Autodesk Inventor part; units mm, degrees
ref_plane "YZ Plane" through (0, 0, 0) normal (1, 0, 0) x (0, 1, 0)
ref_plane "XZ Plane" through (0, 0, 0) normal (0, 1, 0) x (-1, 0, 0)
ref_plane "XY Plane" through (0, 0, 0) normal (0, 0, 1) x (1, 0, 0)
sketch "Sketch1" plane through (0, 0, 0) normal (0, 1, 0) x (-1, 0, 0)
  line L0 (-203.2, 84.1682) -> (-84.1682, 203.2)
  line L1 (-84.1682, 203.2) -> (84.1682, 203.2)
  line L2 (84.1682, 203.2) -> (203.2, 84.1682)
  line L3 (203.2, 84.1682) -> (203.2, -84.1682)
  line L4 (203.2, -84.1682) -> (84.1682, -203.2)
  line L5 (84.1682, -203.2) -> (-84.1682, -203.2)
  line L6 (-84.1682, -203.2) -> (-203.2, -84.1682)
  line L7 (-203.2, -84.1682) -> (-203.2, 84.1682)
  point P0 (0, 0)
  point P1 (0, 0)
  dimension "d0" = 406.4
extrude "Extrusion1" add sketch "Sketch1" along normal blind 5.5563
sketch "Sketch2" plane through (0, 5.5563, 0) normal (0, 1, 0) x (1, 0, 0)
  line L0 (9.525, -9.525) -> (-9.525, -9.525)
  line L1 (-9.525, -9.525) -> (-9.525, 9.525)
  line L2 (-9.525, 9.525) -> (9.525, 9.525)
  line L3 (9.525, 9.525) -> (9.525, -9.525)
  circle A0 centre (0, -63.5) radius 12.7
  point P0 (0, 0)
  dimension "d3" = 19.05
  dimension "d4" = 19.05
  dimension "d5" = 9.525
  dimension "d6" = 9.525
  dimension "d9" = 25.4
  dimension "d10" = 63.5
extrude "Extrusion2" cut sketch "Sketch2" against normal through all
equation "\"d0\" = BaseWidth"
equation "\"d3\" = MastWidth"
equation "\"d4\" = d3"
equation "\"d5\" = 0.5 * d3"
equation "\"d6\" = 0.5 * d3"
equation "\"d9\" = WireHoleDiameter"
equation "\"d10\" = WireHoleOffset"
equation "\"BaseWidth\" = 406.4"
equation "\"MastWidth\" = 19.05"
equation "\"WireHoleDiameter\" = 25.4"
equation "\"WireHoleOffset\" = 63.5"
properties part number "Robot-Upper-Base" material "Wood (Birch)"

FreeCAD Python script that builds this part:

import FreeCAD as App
import Part
import Sketcher

V = App.Vector
Q = App.Units.Quantity

doc = App.newDocument("Part")
body = doc.addObject("PartDesign::Body", "Body")

sketch1 = body.newObject("Sketcher::SketchObject", "Sketch")
sketch1.AttachmentSupport = (doc.getObject("XZ_Plane"), [""])
sketch1.MapMode = "FlatFace"
sketch1.addGeometry([
    Part.LineSegment(V(84, 203, 0), V(203, 84, 0)),
    Part.LineSegment(V(203, 84, 0), V(203, -84, 0)),
    Part.LineSegment(V(203, -84, 0), V(84, -203, 0)),
    Part.LineSegment(V(84, -203, 0), V(-84, -203, 0)),
    Part.LineSegment(V(-84, -203, 0), V(-203, -84, 0)),
    Part.LineSegment(V(-203, -84, 0), V(-203, 84, 0)),
    Part.LineSegment(V(-203, 84, 0), V(-84, 203, 0)),
    Part.LineSegment(V(-84, 203, 0), V(84, 203, 0)),
], False)
sketch1.addConstraint([
    Sketcher.Constraint("Coincident", 0, 2, 1, 1),
    Sketcher.Constraint("Coincident", 1, 2, 2, 1),
    Sketcher.Constraint("Coincident", 2, 2, 3, 1),
    Sketcher.Constraint("Coincident", 3, 2, 4, 1),
    Sketcher.Constraint("Coincident", 4, 2, 5, 1),
    Sketcher.Constraint("Coincident", 5, 2, 6, 1),
    Sketcher.Constraint("Coincident", 6, 2, 7, 1),
    Sketcher.Constraint("Coincident", 7, 2, 0, 1),
    Sketcher.Constraint("Vertical", 1),
    Sketcher.Constraint("Horizontal", 3),
    Sketcher.Constraint("Vertical", 5),
    Sketcher.Constraint("Horizontal", 7),
    Sketcher.Constraint("Symmetric", 0, 2, 4, 2, -1, 1),
    Sketcher.Constraint("Symmetric", 2, 2, 6, 2, -1, 1),
    Sketcher.Constraint("Perpendicular", 0, 2),
    Sketcher.Constraint("Perpendicular", 2, 4),
    Sketcher.Constraint("Perpendicular", 4, 6),
    Sketcher.Constraint("Horizontal", 1, 2, 4, 2),
    Sketcher.Constraint("Vertical", 3, 2, 6, 2),
    Sketcher.Constraint("Equal", 7, 1),
    Sketcher.Constraint("DistanceX", 4, 2, 1, 2, Q("16 in")),
    Sketcher.Constraint("DistanceX", 3, 2, 3, 1, Q("168.3364 mm")),
])
pad1 = body.newObject("PartDesign::Pad", "Pad")
pad1.Profile = sketch1
pad1.Length = Q("0.218752 in")
pad1.Reversed = True

sketch2 = body.newObject("Sketcher::SketchObject", "Sketch001")
sketch2.AttachmentSupport = (doc.getObject("XZ_Plane"), [""])
sketch2.MapMode = "FlatFace"
sketch2.AttachmentOffset = App.Placement(V(0, 0, -0.218752 * 25.4), App.Rotation())
sketch2.addGeometry([
    Part.LineSegment(V(-10, 10, 0), V(10, 10, 0)),
    Part.LineSegment(V(10, 10, 0), V(10, -10, 0)),
    Part.LineSegment(V(10, -10, 0), V(-10, -10, 0)),
    Part.LineSegment(V(-10, -10, 0), V(-10, 10, 0)),
    Part.Circle(V(0, 64, 0), V(0, 0, 1), 13),
], False)
sketch2.addConstraint([
    Sketcher.Constraint("Coincident", 0, 2, 1, 1),
    Sketcher.Constraint("Coincident", 1, 2, 2, 1),
    Sketcher.Constraint("Coincident", 2, 2, 3, 1),
    Sketcher.Constraint("Coincident", 3, 2, 0, 1),
    Sketcher.Constraint("Horizontal", 0),
    Sketcher.Constraint("Vertical", 1),
    Sketcher.Constraint("Horizontal", 2),
    Sketcher.Constraint("Vertical", 3),
    Sketcher.Constraint("Symmetric", 0, 2, 2, 2, -1, 1),
    Sketcher.Constraint("PointOnObject", 4, 3, -2),
    Sketcher.Constraint("Equal", 2, 1),
    Sketcher.Constraint("Diameter", 4, Q("1 in")),
    Sketcher.Constraint("DistanceX", 0, 1, 0, 2, Q("0.75 in")),
    Sketcher.Constraint("DistanceY", -1, 1, 4, 3, Q("2.5 in")),
])
pocket1 = body.newObject("PartDesign::Pocket", "Pocket")
pocket1.Profile = sketch2
pocket1.Type = "ThroughAll"
pocket1.Reversed = True

doc.recompute()
